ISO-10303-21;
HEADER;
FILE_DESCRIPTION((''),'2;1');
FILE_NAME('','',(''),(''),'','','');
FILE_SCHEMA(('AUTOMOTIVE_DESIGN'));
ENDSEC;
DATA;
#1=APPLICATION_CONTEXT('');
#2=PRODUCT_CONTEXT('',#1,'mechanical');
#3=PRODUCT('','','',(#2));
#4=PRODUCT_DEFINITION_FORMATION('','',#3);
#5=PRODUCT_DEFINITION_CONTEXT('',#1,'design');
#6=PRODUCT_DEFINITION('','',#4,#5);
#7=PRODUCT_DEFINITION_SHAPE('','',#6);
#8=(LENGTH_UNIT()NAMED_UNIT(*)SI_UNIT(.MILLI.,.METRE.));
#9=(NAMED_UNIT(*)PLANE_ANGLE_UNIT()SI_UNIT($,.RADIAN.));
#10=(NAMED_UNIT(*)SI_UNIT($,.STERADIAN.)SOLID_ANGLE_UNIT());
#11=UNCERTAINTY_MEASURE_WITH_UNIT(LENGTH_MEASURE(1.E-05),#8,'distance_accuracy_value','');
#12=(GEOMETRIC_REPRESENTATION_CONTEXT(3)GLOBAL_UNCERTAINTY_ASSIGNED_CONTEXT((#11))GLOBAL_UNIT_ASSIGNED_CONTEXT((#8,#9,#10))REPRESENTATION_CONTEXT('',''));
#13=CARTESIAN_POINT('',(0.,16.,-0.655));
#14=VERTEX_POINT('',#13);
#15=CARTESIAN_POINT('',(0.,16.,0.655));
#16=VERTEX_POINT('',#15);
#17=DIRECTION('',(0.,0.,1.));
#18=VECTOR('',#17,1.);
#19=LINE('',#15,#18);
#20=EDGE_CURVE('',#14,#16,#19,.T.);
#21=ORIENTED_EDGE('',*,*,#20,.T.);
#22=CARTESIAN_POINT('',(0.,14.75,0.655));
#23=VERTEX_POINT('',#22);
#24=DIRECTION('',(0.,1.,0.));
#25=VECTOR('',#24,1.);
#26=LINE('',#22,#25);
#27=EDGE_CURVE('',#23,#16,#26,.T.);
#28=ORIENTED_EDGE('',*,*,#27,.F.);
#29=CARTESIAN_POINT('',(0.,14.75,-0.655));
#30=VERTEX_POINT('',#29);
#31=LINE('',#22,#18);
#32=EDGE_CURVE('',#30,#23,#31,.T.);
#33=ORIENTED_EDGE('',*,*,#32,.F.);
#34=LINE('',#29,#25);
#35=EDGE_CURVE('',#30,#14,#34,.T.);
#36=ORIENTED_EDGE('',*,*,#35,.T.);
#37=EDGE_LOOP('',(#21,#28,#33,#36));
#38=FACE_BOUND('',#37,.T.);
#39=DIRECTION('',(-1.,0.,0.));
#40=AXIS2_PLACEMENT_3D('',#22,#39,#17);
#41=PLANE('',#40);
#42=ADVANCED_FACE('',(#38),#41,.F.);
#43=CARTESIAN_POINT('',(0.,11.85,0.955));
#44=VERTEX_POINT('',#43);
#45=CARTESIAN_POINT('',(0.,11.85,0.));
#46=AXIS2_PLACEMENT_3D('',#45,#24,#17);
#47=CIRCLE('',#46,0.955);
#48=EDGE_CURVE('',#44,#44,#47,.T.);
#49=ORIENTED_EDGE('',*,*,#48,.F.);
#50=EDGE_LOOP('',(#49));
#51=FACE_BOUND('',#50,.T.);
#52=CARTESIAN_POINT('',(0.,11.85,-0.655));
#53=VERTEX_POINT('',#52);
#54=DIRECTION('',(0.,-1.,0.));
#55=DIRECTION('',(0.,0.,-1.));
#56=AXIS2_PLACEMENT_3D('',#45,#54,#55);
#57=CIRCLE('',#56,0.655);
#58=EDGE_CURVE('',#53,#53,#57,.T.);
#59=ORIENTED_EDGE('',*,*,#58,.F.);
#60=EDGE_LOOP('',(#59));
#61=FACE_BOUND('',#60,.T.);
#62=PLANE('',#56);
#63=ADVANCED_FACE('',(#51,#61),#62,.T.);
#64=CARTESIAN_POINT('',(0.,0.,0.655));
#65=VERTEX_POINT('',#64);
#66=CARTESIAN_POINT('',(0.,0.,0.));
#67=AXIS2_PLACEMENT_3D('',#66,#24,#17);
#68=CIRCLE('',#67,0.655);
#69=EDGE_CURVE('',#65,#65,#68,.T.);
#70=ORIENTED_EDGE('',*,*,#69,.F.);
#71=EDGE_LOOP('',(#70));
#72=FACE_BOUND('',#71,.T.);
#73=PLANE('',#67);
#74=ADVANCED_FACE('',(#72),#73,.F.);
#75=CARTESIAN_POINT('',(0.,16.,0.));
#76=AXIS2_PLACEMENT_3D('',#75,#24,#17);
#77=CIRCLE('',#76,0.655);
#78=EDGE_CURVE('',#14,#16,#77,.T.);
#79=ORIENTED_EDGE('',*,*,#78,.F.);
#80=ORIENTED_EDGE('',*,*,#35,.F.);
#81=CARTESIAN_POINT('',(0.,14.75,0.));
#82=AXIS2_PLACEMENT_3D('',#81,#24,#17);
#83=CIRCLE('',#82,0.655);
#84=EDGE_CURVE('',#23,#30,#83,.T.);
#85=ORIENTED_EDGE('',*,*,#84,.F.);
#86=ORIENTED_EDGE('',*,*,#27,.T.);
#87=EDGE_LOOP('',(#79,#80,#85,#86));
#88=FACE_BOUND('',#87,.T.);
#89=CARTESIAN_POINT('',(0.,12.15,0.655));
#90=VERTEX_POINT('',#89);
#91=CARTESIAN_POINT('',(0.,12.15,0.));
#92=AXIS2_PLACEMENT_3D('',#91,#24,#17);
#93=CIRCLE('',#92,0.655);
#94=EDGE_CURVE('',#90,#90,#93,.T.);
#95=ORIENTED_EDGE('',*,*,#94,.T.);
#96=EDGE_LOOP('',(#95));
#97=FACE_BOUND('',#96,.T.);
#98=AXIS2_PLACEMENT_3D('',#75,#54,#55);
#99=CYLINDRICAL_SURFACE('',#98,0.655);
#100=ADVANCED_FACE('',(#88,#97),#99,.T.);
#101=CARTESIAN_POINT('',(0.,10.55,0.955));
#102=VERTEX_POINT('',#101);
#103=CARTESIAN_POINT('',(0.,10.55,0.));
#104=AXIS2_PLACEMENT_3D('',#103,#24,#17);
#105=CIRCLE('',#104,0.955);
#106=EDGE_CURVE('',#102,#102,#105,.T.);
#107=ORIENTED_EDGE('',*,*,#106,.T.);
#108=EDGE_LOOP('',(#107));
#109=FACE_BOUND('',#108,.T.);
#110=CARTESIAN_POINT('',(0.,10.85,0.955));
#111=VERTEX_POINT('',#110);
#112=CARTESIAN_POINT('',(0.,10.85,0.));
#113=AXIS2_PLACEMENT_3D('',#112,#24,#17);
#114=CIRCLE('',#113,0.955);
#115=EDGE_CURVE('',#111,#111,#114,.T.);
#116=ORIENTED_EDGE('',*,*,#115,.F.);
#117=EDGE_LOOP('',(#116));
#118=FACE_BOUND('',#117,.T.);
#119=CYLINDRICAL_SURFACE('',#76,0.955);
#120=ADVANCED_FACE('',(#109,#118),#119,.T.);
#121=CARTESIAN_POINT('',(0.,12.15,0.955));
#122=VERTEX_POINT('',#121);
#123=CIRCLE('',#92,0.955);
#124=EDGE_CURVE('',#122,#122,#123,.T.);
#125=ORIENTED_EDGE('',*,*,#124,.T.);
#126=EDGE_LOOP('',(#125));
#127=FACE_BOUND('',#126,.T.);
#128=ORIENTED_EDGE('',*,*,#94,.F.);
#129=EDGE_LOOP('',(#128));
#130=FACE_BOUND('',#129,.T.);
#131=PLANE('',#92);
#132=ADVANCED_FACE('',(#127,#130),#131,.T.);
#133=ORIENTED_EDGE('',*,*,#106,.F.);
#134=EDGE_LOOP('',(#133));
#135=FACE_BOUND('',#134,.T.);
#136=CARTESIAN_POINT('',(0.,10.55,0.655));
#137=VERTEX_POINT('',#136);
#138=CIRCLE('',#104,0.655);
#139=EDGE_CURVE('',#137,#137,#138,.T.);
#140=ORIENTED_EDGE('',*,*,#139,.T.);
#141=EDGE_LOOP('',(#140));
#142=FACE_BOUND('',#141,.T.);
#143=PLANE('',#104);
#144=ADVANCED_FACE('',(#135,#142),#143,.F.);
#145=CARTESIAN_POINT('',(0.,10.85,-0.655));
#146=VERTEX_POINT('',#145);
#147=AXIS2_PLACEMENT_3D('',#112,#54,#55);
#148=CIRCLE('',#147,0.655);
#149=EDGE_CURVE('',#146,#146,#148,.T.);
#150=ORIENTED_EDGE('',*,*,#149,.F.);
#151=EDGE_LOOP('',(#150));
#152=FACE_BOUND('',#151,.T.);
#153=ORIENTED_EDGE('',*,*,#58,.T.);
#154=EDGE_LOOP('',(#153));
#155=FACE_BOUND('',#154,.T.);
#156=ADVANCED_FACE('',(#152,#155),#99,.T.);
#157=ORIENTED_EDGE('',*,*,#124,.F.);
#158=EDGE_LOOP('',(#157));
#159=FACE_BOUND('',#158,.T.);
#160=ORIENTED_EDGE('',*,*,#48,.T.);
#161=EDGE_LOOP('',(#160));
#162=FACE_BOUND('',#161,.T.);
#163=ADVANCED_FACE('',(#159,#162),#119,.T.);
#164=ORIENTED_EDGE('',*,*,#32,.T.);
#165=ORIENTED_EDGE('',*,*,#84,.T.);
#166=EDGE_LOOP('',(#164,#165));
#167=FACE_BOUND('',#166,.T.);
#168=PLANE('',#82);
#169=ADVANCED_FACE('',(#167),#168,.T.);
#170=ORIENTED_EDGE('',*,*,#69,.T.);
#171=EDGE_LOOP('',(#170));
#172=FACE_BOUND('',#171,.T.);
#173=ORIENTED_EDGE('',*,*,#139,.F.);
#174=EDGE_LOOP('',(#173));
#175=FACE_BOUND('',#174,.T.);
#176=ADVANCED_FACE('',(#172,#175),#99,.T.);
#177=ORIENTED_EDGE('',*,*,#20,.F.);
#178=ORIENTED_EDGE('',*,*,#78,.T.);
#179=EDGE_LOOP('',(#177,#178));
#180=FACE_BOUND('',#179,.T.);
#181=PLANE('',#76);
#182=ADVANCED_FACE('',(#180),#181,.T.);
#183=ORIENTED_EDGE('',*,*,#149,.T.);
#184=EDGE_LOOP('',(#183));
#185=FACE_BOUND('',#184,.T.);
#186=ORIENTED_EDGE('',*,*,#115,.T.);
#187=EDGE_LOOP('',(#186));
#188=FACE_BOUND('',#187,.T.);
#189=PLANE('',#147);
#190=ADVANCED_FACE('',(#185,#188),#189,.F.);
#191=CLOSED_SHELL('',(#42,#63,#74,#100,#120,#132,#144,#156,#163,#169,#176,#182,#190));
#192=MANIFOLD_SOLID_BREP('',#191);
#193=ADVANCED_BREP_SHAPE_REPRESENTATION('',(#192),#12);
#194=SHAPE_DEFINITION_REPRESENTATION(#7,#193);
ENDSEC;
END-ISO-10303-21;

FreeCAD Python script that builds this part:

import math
import FreeCAD as App
import Part
import Sketcher
from FreeCAD import Vector
Q = App.Units.Quantity

doc = App.newDocument("Part")
params = doc.addObject("Spreadsheet::Sheet", "Params")
for row, (alias, value) in enumerate([
    ("sketch1_diameter", "1.31 mm"),
    ("pad1_length", "16 mm"),
    ("pocket1_length", "1.25 mm"),
    ("sketch3_width", "0.6 mm"),
    ("sketch3_height", "0.3 mm"),
    ("revolution_angle", "360 deg"),
], start=1):
    params.set(f"A{row}", alias)
    params.set(f"B{row}", "=" + value)
    params.setAlias(f"B{row}", alias)

body = doc.addObject("PartDesign::Body", "Body")

sketch1 = body.newObject("Sketcher::SketchObject", "Sketch")
sketch1.AttachmentSupport = (doc.getObject("XZ_Plane"), [""])
sketch1.MapMode = "FlatFace"
sketch1.addGeometry(Part.Circle(Vector(0, 0, 0), Vector(0, 0, 1), 0.7), False)
sketch1.addConstraint([
    Sketcher.Constraint("Coincident", 0, 3, -1, 1),
    Sketcher.Constraint("Diameter", 0, Q("1.31 mm")),
])
sketch1.setExpression("Constraints[1]", "Params.sketch1_diameter")
pad1 = body.newObject("PartDesign::Pad", "Pad")
pad1.Profile = sketch1
pad1.setExpression("Length", "Params.pad1_length")
pad1.Reversed = True

sketch2 = body.newObject("Sketcher::SketchObject", "Sketch001")
sketch2.AttachmentSupport = (doc.getObject("XZ_Plane"), [""])
sketch2.MapMode = "FlatFace"
sketch2.AttachmentOffset = App.Placement(Vector(0, 0, -14.75), App.Rotation())
sketch2.addGeometry([
    Part.LineSegment(Vector(0, -0.7, 0), Vector(0, 0.7, 0)),
    Part.ArcOfCircle(Part.Circle(Vector(0, 0, 0), Vector(0, 0, 1), 0.7), math.radians(-90), math.radians(90)),
], False)
sketch2.addConstraint([
    Sketcher.Constraint("Coincident", 0, 1, 1, 1),
    Sketcher.Constraint("Coincident", 1, 2, 0, 2),
    Sketcher.Constraint("Vertical", 0),
    Sketcher.Constraint("Coincident", 1, 3, -1, 1),
    Sketcher.Constraint("PointOnObject", 0, 1, -2),
    Sketcher.Constraint("Radius", 1, Q("0.655 mm")),
])
pocket1 = body.newObject("PartDesign::Pocket", "Pocket")
pocket1.Profile = sketch2
pocket1.setExpression("Length", "Params.pocket1_length")

sketch3 = body.newObject("Sketcher::SketchObject", "Sketch002")
sketch3.AttachmentSupport = (doc.getObject("XY_Plane"), [""])
sketch3.MapMode = "FlatFace"
sketch3.addGeometry([
    Part.LineSegment(Vector(0.35, 12.15, 0), Vector(0.35, 11.85, 0)),
    Part.LineSegment(Vector(0.35, 11.85, 0), Vector(0.95, 11.85, 0)),
    Part.LineSegment(Vector(0.95, 11.85, 0), Vector(0.95, 12.15, 0)),
    Part.LineSegment(Vector(0.95, 12.15, 0), Vector(0.35, 12.15, 0)),
    Part.LineSegment(Vector(0.35, 10.85, 0), Vector(0.35, 10.55, 0)),
    Part.LineSegment(Vector(0.35, 10.55, 0), Vector(0.95, 10.55, 0)),
    Part.LineSegment(Vector(0.95, 10.55, 0), Vector(0.95, 10.85, 0)),
    Part.LineSegment(Vector(0.95, 10.85, 0), Vector(0.35, 10.85, 0)),
], False)
sketch3.addConstraint([
    Sketcher.Constraint("Coincident", 0, 2, 1, 1),
    Sketcher.Constraint("Coincident", 1, 2, 2, 1),
    Sketcher.Constraint("Coincident", 2, 2, 3, 1),
    Sketcher.Constraint("Coincident", 3, 2, 0, 1),
    Sketcher.Constraint("Coincident", 4, 2, 5, 1),
    Sketcher.Constraint("Coincident", 5, 2, 6, 1),
    Sketcher.Constraint("Coincident", 6, 2, 7, 1),
    Sketcher.Constraint("Coincident", 7, 2, 4, 1),
    Sketcher.Constraint("Vertical", 0),
    Sketcher.Constraint("Horizontal", 1),
    Sketcher.Constraint("Vertical", 2),
    Sketcher.Constraint("Horizontal", 3),
    Sketcher.Constraint("Vertical", 4),
    Sketcher.Constraint("Horizontal", 5),
    Sketcher.Constraint("Vertical", 6),
    Sketcher.Constraint("Horizontal", 7),
    Sketcher.Constraint("Vertical", 3, 2, 4, 2),
    Sketcher.Constraint("Vertical", 2, 2, 5, 2),
    Sketcher.Constraint("Equal", 2, 4),
    Sketcher.Constraint("DistanceX", 1, 1, 1, 2, Q("0.6 mm")),
    Sketcher.Constraint("DistanceY", 0, 2, 0, 1, Q("0.3 mm")),
    Sketcher.Constraint("DistanceY", 6, 2, 1, 2, Q("1 mm")),
    Sketcher.Constraint("DistanceY", -1, 1, 0, 2, Q("11.85 mm")),
    Sketcher.Constraint("DistanceX", -1, 1, 0, 2, Q("0.355 mm")),
])
sketch3.setExpression("Constraints[19]", "Params.sketch3_width")
sketch3.setExpression("Constraints[20]", "Params.sketch3_height")
revolution = body.newObject("PartDesign::Revolution", "Revolution")
revolution.Profile = sketch3
revolution.ReferenceAxis = (sketch3, ["V_Axis"])
revolution.setExpression("Angle", "Params.revolution_angle")

doc.recompute()
